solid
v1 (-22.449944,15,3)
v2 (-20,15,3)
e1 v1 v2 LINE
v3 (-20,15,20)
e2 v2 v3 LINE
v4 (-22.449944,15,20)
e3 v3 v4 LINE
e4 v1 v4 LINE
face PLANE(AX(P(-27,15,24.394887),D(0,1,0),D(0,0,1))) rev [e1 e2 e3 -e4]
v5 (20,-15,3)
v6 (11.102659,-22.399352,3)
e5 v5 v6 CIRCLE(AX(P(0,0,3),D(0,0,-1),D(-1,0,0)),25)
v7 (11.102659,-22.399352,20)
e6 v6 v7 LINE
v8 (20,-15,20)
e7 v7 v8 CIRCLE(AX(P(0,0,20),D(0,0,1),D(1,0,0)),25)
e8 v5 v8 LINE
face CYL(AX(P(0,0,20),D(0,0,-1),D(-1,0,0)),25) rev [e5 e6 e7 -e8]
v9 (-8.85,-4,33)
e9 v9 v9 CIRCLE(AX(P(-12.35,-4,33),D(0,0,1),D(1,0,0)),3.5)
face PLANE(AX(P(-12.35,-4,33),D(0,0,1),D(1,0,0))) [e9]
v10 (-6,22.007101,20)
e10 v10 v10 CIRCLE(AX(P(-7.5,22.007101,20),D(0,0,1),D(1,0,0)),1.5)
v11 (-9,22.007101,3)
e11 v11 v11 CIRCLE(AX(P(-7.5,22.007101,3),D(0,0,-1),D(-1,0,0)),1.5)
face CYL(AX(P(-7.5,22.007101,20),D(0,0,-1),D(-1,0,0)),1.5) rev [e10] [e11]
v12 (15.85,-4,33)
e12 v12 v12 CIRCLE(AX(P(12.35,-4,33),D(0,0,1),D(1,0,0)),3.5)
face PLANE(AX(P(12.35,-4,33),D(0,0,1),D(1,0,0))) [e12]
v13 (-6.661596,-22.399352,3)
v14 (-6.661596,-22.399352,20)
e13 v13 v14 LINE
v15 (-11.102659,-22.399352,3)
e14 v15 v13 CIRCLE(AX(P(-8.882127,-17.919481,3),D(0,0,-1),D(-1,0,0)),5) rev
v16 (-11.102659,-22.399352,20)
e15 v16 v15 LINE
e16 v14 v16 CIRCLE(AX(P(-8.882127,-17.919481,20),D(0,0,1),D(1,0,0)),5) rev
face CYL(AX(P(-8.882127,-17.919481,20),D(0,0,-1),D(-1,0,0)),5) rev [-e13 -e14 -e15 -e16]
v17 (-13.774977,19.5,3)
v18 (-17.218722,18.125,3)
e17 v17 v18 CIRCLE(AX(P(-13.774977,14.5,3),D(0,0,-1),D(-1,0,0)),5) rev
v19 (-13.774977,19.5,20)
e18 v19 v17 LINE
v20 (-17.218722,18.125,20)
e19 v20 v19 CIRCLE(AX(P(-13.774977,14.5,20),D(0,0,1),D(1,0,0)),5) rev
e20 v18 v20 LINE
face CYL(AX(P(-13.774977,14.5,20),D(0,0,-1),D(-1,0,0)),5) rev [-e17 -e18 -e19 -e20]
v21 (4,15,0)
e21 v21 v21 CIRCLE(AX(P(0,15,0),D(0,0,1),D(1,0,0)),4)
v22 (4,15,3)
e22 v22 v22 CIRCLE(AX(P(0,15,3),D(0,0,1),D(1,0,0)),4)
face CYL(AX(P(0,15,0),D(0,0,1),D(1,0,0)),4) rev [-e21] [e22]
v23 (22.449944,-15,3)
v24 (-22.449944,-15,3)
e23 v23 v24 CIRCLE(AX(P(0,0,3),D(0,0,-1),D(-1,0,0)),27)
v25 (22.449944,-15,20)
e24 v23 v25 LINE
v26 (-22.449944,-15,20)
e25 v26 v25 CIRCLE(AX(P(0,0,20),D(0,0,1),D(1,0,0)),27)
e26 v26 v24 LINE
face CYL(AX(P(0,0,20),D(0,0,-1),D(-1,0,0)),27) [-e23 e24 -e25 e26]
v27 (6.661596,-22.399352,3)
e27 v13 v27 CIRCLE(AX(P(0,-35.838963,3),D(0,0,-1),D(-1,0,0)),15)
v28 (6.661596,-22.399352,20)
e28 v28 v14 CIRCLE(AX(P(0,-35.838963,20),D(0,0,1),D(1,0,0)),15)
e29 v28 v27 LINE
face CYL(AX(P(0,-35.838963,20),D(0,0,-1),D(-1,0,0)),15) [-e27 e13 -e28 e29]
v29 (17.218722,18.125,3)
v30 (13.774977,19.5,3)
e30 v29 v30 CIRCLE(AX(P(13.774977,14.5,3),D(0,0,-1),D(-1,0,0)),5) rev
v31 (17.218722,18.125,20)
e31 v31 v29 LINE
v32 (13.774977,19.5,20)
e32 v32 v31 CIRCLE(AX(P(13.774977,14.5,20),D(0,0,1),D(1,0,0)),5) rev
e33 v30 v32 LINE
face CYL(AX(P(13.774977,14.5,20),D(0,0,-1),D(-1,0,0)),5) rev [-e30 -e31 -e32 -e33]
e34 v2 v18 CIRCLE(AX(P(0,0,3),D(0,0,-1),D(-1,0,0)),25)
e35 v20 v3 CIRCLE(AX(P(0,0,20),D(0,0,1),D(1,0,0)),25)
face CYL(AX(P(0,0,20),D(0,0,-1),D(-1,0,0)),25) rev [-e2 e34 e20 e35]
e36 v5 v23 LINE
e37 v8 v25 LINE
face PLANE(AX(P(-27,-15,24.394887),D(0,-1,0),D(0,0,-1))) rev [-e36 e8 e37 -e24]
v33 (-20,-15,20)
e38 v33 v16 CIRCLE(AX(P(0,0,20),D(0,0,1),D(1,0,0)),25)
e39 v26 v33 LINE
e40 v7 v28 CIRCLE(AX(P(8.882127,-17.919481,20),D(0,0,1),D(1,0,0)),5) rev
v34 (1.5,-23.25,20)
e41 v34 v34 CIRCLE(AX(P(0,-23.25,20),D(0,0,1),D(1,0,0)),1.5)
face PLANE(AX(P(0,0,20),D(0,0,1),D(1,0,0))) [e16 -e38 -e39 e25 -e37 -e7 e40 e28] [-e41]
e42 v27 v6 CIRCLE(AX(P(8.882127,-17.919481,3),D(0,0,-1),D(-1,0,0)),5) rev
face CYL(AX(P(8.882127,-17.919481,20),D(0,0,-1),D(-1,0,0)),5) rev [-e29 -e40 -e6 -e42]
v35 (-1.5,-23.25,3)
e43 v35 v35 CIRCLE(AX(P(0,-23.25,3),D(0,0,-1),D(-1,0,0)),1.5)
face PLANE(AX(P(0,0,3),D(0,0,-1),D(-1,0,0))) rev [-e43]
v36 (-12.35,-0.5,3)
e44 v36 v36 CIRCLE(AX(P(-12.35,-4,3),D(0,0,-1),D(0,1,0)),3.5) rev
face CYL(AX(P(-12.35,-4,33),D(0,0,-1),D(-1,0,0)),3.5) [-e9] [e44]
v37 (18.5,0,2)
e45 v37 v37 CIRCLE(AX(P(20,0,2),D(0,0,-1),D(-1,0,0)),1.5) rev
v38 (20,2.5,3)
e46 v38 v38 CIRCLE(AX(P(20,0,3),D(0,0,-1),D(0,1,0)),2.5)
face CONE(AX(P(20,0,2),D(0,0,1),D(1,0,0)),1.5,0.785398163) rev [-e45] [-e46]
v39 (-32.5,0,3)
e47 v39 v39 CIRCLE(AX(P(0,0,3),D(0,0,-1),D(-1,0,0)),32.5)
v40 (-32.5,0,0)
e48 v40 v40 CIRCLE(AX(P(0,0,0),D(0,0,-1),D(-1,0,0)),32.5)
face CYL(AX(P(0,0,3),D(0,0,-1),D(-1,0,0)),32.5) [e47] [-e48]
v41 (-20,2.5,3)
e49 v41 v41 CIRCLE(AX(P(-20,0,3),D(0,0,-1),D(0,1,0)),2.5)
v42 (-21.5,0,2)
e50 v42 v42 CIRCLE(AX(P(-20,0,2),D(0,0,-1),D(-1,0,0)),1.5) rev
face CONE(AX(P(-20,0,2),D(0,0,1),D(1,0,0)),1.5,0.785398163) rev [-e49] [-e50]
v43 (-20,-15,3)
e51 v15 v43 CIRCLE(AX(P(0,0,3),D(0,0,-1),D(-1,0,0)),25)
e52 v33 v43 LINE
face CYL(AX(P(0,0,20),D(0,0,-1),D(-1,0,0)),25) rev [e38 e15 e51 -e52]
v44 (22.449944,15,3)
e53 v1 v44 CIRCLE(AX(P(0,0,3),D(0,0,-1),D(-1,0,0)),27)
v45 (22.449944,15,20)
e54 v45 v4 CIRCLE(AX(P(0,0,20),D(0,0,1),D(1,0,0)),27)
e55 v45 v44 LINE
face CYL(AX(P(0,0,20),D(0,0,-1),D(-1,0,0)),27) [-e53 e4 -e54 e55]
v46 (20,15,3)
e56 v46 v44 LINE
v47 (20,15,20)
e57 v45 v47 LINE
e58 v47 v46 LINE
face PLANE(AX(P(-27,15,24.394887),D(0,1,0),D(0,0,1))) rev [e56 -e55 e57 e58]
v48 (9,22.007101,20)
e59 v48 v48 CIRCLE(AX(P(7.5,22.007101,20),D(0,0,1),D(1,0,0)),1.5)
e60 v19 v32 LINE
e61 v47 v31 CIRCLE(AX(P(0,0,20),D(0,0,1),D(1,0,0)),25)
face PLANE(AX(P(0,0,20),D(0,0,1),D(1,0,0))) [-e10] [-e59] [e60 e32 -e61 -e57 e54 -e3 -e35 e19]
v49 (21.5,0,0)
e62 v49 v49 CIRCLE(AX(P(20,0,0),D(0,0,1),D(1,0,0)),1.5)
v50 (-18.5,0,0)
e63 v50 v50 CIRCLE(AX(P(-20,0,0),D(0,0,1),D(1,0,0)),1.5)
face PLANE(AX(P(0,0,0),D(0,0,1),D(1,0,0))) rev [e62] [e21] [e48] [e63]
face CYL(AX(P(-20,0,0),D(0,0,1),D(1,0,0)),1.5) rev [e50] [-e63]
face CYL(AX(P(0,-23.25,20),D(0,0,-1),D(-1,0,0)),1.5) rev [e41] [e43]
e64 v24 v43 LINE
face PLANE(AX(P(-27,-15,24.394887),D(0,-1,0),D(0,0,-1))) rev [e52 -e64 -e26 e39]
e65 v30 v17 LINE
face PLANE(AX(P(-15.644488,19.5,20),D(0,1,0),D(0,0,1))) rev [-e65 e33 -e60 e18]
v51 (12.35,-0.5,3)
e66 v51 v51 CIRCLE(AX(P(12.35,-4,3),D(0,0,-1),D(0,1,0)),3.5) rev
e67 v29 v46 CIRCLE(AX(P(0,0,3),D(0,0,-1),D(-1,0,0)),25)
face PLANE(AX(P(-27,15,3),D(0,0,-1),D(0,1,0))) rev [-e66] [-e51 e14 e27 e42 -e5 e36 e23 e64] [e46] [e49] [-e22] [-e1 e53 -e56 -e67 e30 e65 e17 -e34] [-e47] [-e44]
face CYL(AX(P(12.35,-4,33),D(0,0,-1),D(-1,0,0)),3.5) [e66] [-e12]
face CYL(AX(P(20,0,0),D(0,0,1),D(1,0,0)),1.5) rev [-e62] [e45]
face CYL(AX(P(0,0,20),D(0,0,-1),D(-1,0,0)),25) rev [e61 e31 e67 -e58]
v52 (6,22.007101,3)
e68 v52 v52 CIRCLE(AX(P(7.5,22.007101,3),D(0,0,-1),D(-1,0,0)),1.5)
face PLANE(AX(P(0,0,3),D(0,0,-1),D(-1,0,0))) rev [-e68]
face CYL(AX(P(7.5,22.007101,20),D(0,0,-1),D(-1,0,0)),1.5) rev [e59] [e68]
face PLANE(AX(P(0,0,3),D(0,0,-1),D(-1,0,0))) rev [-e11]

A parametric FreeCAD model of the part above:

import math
import FreeCAD as App
import Part
import Sketcher

V = App.Vector
Q = App.Units.Quantity


def edges_at(feature, points):
    """Names of the edges that pass closest to the given points."""
    edges = feature.Shape.Edges
    near = lambda p: min(range(len(edges)), key=lambda i: edges[i].distToShape(Part.Vertex(*p))[0])
    return sorted({f"Edge{near(p) + 1}" for p in points})


def add_polygon(sketch, points):
    """Adds a closed chain of lines whose ends are joined by coincident constraints."""
    first, n = sketch.GeometryCount, len(points)
    for a, b in zip(points, points[1:] + points[:1]):
        sketch.addGeometry(Part.LineSegment(App.Vector(*a, 0), App.Vector(*b, 0)), False)
    for i in range(n):
        sketch.addConstraint(Sketcher.Constraint("Coincident", first + i, 2, first + (i + 1) % n, 1))

doc = App.newDocument("Part")
body = doc.addObject("PartDesign::Body", "Body")

sketch1 = body.newObject("Sketcher::SketchObject", "Sketch")
sketch1.AttachmentSupport = (doc.getObject("XY_Plane"), [""])
sketch1.MapMode = "FlatFace"
sketch1.addGeometry(Part.Circle(V(0, 0, 0), V(0, 0, 1), 27), False)
sketch1.addGeometry(Part.Circle(V(0, 0, 0), V(0, 0, 1), 25), False)
sketch1.addConstraint(Sketcher.Constraint("Coincident", 0, 3, -1, 1))
sketch1.addConstraint(Sketcher.Constraint("Coincident", 1, 3, -1, 1))
sketch1.addConstraint(Sketcher.Constraint("Diameter", 0, Q("54 mm")))
sketch1.addConstraint(Sketcher.Constraint("Diameter", 1, Q("50 mm")))
pad1 = body.newObject("PartDesign::Pad", "Pad")
pad1.Profile = sketch1
pad1.Length = 20

sketch2 = body.newObject("Sketcher::SketchObject", "Sketch001")
sketch2.AttachmentSupport = (doc.getObject("YZ_Plane"), [""])
sketch2.MapMode = "FlatFace"
add_polygon(sketch2, [(15, 24), (-15, 24), (-15, 3), (15, 3)])
sketch2.addConstraint(Sketcher.Constraint("Horizontal", 0))
sketch2.addConstraint(Sketcher.Constraint("Vertical", 1))
sketch2.addConstraint(Sketcher.Constraint("Horizontal", 2))
sketch2.addConstraint(Sketcher.Constraint("Vertical", 3))
sketch2.addConstraint(Sketcher.Constraint("DistanceX", 0, 2, 0, 1, Q("30 mm")))
sketch2.addConstraint(Sketcher.Constraint("DistanceX", 0, 2, -1, 1, Q("15 mm")))
sketch2.addConstraint(Sketcher.Constraint("DistanceY", -1, 1, 1, 2, Q("3 mm")))
sketch2.addConstraint(Sketcher.Constraint("DistanceY", 1, 2, 1, 1, Q("21.394887 mm")))
pocket1 = body.newObject("PartDesign::Pocket", "Pocket")
pocket1.Profile = sketch2
pocket1.Type = "ThroughAll"
pocket1.Midplane = True

sketch3 = body.newObject("Sketcher::SketchObject", "Sketch002")
sketch3.AttachmentSupport = (doc.getObject("XY_Plane"), [""])
sketch3.MapMode = "FlatFace"
sketch3.addGeometry(Part.LineSegment(V(-15.6, 19.5, 0), V(15.6, 19.5, 0)), False)
sketch3.addGeometry(Part.ArcOfCircle(Part.Circle(V(0, 4.9, 0), V(0, 0, 1), 21.4), math.radians(43), math.radians(137)), False)
sketch3.addGeometry(Part.Circle(V(-7.5, 22, 0), V(0, 0, 1), 1.5), False)
sketch3.addGeometry(Part.Circle(V(7.5, 22, 0), V(0, 0, 1), 1.5), False)
sketch3.addGeometry(Part.ArcOfCircle(Part.Circle(V(0, -35.8, 0), V(0, 0, 1), 15), math.radians(55), math.radians(125)), False)
sketch3.addGeometry(Part.ArcOfCircle(Part.Circle(V(0, -11.4, 0), V(0, 0, 1), 14.8), math.radians(-125), math.radians(-55)), False)
sketch3.addGeometry(Part.Circle(V(0, -23.2, 0), V(0, 0, 1), 1.5), False)
sketch3.addConstraint(Sketcher.Constraint("Coincident", 0, 1, 1, 2))
sketch3.addConstraint(Sketcher.Constraint("Coincident", 1, 1, 0, 2))
sketch3.addConstraint(Sketcher.Constraint("Coincident", 4, 1, 5, 2))
sketch3.addConstraint(Sketcher.Constraint("Coincident", 5, 1, 4, 2))
sketch3.addConstraint(Sketcher.Constraint("Horizontal", 0))
sketch3.addConstraint(Sketcher.Constraint("Equal", 2, 3))
sketch3.addConstraint(Sketcher.Constraint("Equal", 3, 6))
sketch3.addConstraint(Sketcher.Constraint("Symmetric", 2, 3, 3, 3, -2))
sketch3.addConstraint(Sketcher.Constraint("Symmetric", 4, 1, 5, 1, -2))
sketch3.addConstraint(Sketcher.Constraint("PointOnObject", 1, 3, -2))
sketch3.addConstraint(Sketcher.Constraint("PointOnObject", 6, 3, -2))
sketch3.addConstraint(Sketcher.Constraint("Diameter", 2, Q("3 mm")))
sketch3.addConstraint(Sketcher.Constraint("Radius", 4, Q("15 mm")))
sketch3.addConstraint(Sketcher.Constraint("DistanceX", 2, 3, 3, 3, Q("15 mm")))
sketch3.addConstraint(Sketcher.Constraint("DistanceY", 4, 1, 1, 1, Q("43 mm")))
sketch3.addConstraint(Sketcher.Constraint("DistanceY", -1, 1, 0, 1, Q("19.5 mm")))
sketch3.addConstraint(Sketcher.Constraint("Radius", 1, Q("21.4223 mm")))
sketch3.addConstraint(Sketcher.Constraint("DistanceY", 6, 3, -1, 1, Q("23.25 mm")))
sketch3.addConstraint(Sketcher.Constraint("Radius", 5, Q("14.783429 mm")))
sketch3.addConstraint(Sketcher.Constraint("DistanceY", -1, 1, 2, 3, Q("22.007101 mm")))
sketch3.addConstraint(Sketcher.Constraint("DistanceX", 0, 1, 0, 2, Q("31.288976 mm")))
sketch3.addConstraint(Sketcher.Constraint("DistanceX", -1, 1, 4, 1, Q("8.529361 mm")))
pad2 = body.newObject("PartDesign::Pad", "Pad001")
pad2.Profile = sketch3
pad2.Length = 20
doc.recompute()

fillet = body.newObject("PartDesign::Fillet", "Fillet")
fillet.Base = (pad2, edges_at(pad2, [
    (15.644, 19.5, 10),
    (-15.644, 19.5, 10),
    (-8.529, -23.5, 10),
    (8.529, -23.5, 10),
]))
fillet.Radius = 5

sketch4 = body.newObject("Sketcher::SketchObject", "Sketch003")
sketch4.AttachmentSupport = (doc.getObject("XY_Plane"), [""])
sketch4.MapMode = "FlatFace"
sketch4.addGeometry(Part.Circle(V(0, 0, 0), V(0, 0, 1), 32), False)
sketch4.addConstraint(Sketcher.Constraint("Coincident", 0, 3, -1, 1))
sketch4.addConstraint(Sketcher.Constraint("Diameter", 0, Q("65 mm")))
pad3 = body.newObject("PartDesign::Pad", "Pad002")
pad3.Profile = sketch4
pad3.Length = 3

sketch5 = body.newObject("Sketcher::SketchObject", "Sketch004")
sketch5.AttachmentSupport = (doc.getObject("XY_Plane"), [""])
sketch5.MapMode = "FlatFace"
sketch5.AttachmentOffset = App.Placement(V(0, 0, 3), App.Rotation())
sketch5.addGeometry(Part.Circle(V(0, 15, 0), V(0, 0, 1), 4), False)
sketch5.addConstraint(Sketcher.Constraint("PointOnObject", 0, 3, -2))
sketch5.addConstraint(Sketcher.Constraint("Diameter", 0, Q("8 mm")))
sketch5.addConstraint(Sketcher.Constraint("DistanceY", -1, 1, 0, 3, Q("15 mm")))
pocket2 = body.newObject("PartDesign::Pocket", "Pocket001")
pocket2.Profile = sketch5
pocket2.Type = "ThroughAll"

sketch6 = body.newObject("Sketcher::SketchObject", "Sketch005")
sketch6.AttachmentSupport = (doc.getObject("XY_Plane"), [""])
sketch6.MapMode = "FlatFace"
sketch6.AttachmentOffset = App.Placement(V(0, 0, 3), App.Rotation())
sketch6.addGeometry(Part.Circle(V(-20, 0, 0), V(0, 0, 1), 1.5), False)
sketch6.addGeometry(Part.Circle(V(20, 0, 0), V(0, 0, 1), 1.5), False)
sketch6.addConstraint(Sketcher.Constraint("Equal", 0, 1))
sketch6.addConstraint(Sketcher.Constraint("Symmetric", 0, 3, 1, 3, -1, 1))
sketch6.addConstraint(Sketcher.Constraint("PointOnObject", 0, 3, -1))
sketch6.addConstraint(Sketcher.Constraint("Diameter", 0, Q("3 mm")))
sketch6.addConstraint(Sketcher.Constraint("DistanceX", 0, 3, -1, 1, Q("20 mm")))
pocket3 = body.newObject("PartDesign::Pocket", "Pocket002")
pocket3.Profile = sketch6
pocket3.Type = "ThroughAll"
doc.recompute()

chamfer = body.newObject("PartDesign::Chamfer", "Chamfer")
chamfer.Base = (pocket3, edges_at(pocket3, [(-21.5, 0, 3), (18.5, 0, 3)]))
chamfer.Size = 1

sketch7 = body.newObject("Sketcher::SketchObject", "Sketch006")
sketch7.AttachmentSupport = (doc.getObject("XY_Plane"), [""])
sketch7.MapMode = "FlatFace"
sketch7.AttachmentOffset = App.Placement(V(0, 0, 3), App.Rotation())
sketch7.addGeometry(Part.Circle(V(-12.3, -4, 0), V(0, 0, 1), 3.5), False)
sketch7.addGeometry(Part.Circle(V(12.3, -4, 0), V(0, 0, 1), 3.5), False)
sketch7.addConstraint(Sketcher.Constraint("Equal", 0, 1))
sketch7.addConstraint(Sketcher.Constraint("Symmetric", 0, 3, 1, 3, -2))
sketch7.addConstraint(Sketcher.Constraint("Diameter", 0, Q("7 mm")))
sketch7.addConstraint(Sketcher.Constraint("DistanceY", 0, 3, -1, 1, Q("4 mm")))
sketch7.addConstraint(Sketcher.Constraint("DistanceX", 0, 3, 1, 3, Q("24.7 mm")))
pad4 = body.newObject("PartDesign::Pad", "Pad003")
pad4.Profile = sketch7
pad4.Length = 30

doc.recompute()
